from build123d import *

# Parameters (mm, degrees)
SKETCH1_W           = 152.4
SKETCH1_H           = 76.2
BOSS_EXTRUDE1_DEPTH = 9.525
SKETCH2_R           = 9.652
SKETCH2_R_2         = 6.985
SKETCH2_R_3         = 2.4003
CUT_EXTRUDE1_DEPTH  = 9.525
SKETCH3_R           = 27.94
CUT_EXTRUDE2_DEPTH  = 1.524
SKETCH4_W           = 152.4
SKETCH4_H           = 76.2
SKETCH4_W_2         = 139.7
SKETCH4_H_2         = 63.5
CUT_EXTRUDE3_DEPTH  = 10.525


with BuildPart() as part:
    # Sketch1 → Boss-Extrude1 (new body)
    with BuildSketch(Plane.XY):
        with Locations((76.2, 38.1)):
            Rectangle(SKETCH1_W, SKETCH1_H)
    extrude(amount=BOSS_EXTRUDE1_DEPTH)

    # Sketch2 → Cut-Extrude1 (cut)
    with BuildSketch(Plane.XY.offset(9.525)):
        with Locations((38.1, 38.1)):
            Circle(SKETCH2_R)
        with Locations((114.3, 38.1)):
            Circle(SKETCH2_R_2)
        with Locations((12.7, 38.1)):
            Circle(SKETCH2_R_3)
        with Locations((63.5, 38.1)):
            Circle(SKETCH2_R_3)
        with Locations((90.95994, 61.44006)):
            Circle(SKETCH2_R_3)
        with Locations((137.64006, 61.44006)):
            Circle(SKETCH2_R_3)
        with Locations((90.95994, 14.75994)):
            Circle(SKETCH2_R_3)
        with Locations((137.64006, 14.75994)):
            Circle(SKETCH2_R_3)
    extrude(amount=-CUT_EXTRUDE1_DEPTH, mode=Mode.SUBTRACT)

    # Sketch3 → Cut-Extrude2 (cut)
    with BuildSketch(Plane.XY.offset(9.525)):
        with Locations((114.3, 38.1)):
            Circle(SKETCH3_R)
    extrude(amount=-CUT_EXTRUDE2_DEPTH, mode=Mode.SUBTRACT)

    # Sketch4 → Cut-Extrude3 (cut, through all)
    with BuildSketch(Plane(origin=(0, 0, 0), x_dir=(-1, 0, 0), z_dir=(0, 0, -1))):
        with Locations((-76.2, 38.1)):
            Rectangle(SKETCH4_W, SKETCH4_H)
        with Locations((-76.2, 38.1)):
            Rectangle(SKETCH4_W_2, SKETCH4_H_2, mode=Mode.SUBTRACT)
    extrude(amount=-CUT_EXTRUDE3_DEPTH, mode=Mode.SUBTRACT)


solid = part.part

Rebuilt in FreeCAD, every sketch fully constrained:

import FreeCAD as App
import Part
import Sketcher
from FreeCAD import Vector
Q = App.Units.Quantity


def add_polygon(sketch, points):
    """Adds a closed chain of lines whose ends are joined by coincident constraints."""
    first, n = sketch.GeometryCount, len(points)
    for a, b in zip(points, points[1:] + points[:1]):
        sketch.addGeometry(Part.LineSegment(App.Vector(*a, 0), App.Vector(*b, 0)), False)
    for i in range(n):
        sketch.addConstraint(Sketcher.Constraint("Coincident", first + i, 2, first + (i + 1) % n, 1))

doc = App.newDocument("Part")
body = doc.addObject("PartDesign::Body", "Body")

sketch1 = body.newObject("Sketcher::SketchObject", "Sketch")
sketch1.AttachmentSupport = (doc.getObject("XY_Plane"), [""])
sketch1.MapMode = "FlatFace"
add_polygon(sketch1, [(0, 76), (0, 0), (152, 0), (152, 76)])
sketch1.addConstraint([
    Sketcher.Constraint("Vertical", 0),
    Sketcher.Constraint("Horizontal", 1),
    Sketcher.Constraint("Vertical", 2),
    Sketcher.Constraint("Horizontal", 3),
    Sketcher.Constraint("Coincident", 0, 2, -1, 1),
    Sketcher.Constraint("DistanceX", 1, 1, 1, 2, Q("6 in")),
    Sketcher.Constraint("DistanceY", 0, 2, 0, 1, Q("3 in")),
])
pad1 = body.newObject("PartDesign::Pad", "Pad")
pad1.Profile = sketch1
pad1.Length = Q("0.375 in")

sketch2 = body.newObject("Sketcher::SketchObject", "Sketch001")
sketch2.AttachmentSupport = (doc.getObject("XY_Plane"), [""])
sketch2.MapMode = "FlatFace"
sketch2.AttachmentOffset = App.Placement(Vector(0, 0, 0.375 * 25.4), App.Rotation())
sketch2.addGeometry([
    Part.Circle(Vector(38.1, 38.1, 0), Vector(0, 0, 1), 9.7),
    Part.Circle(Vector(114.3, 38.1, 0), Vector(0, 0, 1), 7),
    Part.Circle(Vector(12.7, 38.1, 0), Vector(0, 0, 1), 2.4),
    Part.Circle(Vector(63.5, 38.1, 0), Vector(0, 0, 1), 2.4),
    Part.Circle(Vector(91, 61.4, 0), Vector(0, 0, 1), 2.4),
    Part.Circle(Vector(137.6, 61.4, 0), Vector(0, 0, 1), 2.4),
    Part.Circle(Vector(91, 14.8, 0), Vector(0, 0, 1), 2.4),
    Part.Circle(Vector(137.6, 14.8, 0), Vector(0, 0, 1), 2.4),
], False)
sketch2.addConstraint([
    Sketcher.Constraint("Equal", 2, 3),
    Sketcher.Constraint("Equal", 3, 4),
    Sketcher.Constraint("Equal", 4, 5),
    Sketcher.Constraint("Equal", 5, 6),
    Sketcher.Constraint("Equal", 6, 7),
    Sketcher.Constraint("Horizontal", 0, 3, 1, 3),
    Sketcher.Constraint("Horizontal", 1, 3, 2, 3),
    Sketcher.Constraint("Horizontal", 2, 3, 3, 3),
    Sketcher.Constraint("Horizontal", 4, 3, 5, 3),
    Sketcher.Constraint("Horizontal", 6, 3, 7, 3),
    Sketcher.Constraint("Vertical", 4, 3, 6, 3),
    Sketcher.Constraint("Vertical", 5, 3, 7, 3),
    Sketcher.Constraint("Diameter", 0, Q("0.76 in")),
    Sketcher.Constraint("Diameter", 1, Q("0.55 in")),
    Sketcher.Constraint("Diameter", 2, Q("0.189 in")),
    Sketcher.Constraint("DistanceX", 0, 3, 1, 3, Q("3 in")),
    Sketcher.Constraint("DistanceX", 2, 3, 0, 3, Q("1 in")),
    Sketcher.Constraint("DistanceX", 0, 3, 3, 3, Q("1 in")),
    Sketcher.Constraint("DistanceX", -1, 1, 0, 3, Q("1.5 in")),
    Sketcher.Constraint("DistanceY", -1, 1, 0, 3, Q("1.5 in")),
    Sketcher.Constraint("DistanceX", -1, 1, 4, 3, Q("3.5811 in")),
    Sketcher.Constraint("DistanceY", -1, 1, 4, 3, Q("2.4189 in")),
    Sketcher.Constraint("DistanceX", -1, 1, 5, 3, Q("5.4189 in")),
    Sketcher.Constraint("DistanceY", -1, 1, 6, 3, Q("0.5811 in")),
])
pocket1 = body.newObject("PartDesign::Pocket", "Pocket")
pocket1.Profile = sketch2
pocket1.Length = Q("0.375 in")

sketch3 = body.newObject("Sketcher::SketchObject", "Sketch002")
sketch3.AttachmentSupport = (doc.getObject("XY_Plane"), [""])
sketch3.MapMode = "FlatFace"
sketch3.AttachmentOffset = App.Placement(Vector(0, 0, 0.375 * 25.4), App.Rotation())
sketch3.addGeometry(Part.Circle(Vector(114, 38, 0), Vector(0, 0, 1), 28), False)
sketch3.addConstraint([
    Sketcher.Constraint("Diameter", 0, Q("2.2 in")),
    Sketcher.Constraint("DistanceX", -1, 1, 0, 3, Q("4.5 in")),
    Sketcher.Constraint("DistanceY", -1, 1, 0, 3, Q("1.5 in")),
])
pocket2 = body.newObject("PartDesign::Pocket", "Pocket001")
pocket2.Profile = sketch3
pocket2.Length = Q("0.06 in")

sketch4 = body.newObject("Sketcher::SketchObject", "Sketch003")
sketch4.AttachmentSupport = (doc.getObject("XY_Plane"), [""])
sketch4.MapMode = "FlatFace"
add_polygon(sketch4, [(152, 76), (152, 0), (0, 0), (0, 76)])
add_polygon(sketch4, [(6, 6), (146, 6), (146, 70), (6, 70)])
sketch4.addConstraint([
    Sketcher.Constraint("Vertical", 0),
    Sketcher.Constraint("Horizontal", 1),
    Sketcher.Constraint("Vertical", 2),
    Sketcher.Constraint("Horizontal", 3),
    Sketcher.Constraint("Horizontal", 4),
    Sketcher.Constraint("Vertical", 5),
    Sketcher.Constraint("Horizontal", 6),
    Sketcher.Constraint("Vertical", 7),
    Sketcher.Constraint("Coincident", 1, 2, -1, 1),
    Sketcher.Constraint("DistanceX", 1, 2, 1, 1, Q("6 in")),
    Sketcher.Constraint("DistanceY", 0, 2, 0, 1, Q("3 in")),
    Sketcher.Constraint("DistanceX", 4, 1, 4, 2, Q("5.5 in")),
    Sketcher.Constraint("DistanceY", 5, 1, 5, 2, Q("2.5 in")),
    Sketcher.Constraint("DistanceX", -1, 1, 4, 2, Q("5.75 in")),
    Sketcher.Constraint("DistanceY", -1, 1, 4, 2, Q("0.25 in")),
])
pocket3 = body.newObject("PartDesign::Pocket", "Pocket002")
pocket3.Profile = sketch4
pocket3.Type = "ThroughAll"
pocket3.Reversed = True

doc.recompute()
